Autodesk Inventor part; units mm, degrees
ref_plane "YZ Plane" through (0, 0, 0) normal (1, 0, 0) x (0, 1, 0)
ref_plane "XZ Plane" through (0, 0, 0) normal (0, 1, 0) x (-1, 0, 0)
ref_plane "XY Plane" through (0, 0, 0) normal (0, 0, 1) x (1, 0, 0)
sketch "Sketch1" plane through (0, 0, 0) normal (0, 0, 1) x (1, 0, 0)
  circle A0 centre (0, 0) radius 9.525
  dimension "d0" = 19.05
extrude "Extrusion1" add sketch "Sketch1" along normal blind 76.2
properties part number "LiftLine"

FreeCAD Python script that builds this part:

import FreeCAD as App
import Part
import Sketcher

V = App.Vector
Q = App.Units.Quantity

doc = App.newDocument("Part")
body = doc.addObject("PartDesign::Body", "Body")

sketch1 = body.newObject("Sketcher::SketchObject", "Sketch")
sketch1.AttachmentSupport = (doc.getObject("XY_Plane"), [""])
sketch1.MapMode = "FlatFace"
sketch1.addGeometry(Part.Circle(V(0, 0, 0), V(0, 0, 1), 10), False)
sketch1.addConstraint([
    Sketcher.Constraint("Coincident", 0, 3, -1, 1),
    Sketcher.Constraint("Diameter", 0, Q("0.75 in")),
])
pad1 = body.newObject("PartDesign::Pad", "Pad")
pad1.Profile = sketch1
pad1.Length = Q("3 in")

doc.recompute()
